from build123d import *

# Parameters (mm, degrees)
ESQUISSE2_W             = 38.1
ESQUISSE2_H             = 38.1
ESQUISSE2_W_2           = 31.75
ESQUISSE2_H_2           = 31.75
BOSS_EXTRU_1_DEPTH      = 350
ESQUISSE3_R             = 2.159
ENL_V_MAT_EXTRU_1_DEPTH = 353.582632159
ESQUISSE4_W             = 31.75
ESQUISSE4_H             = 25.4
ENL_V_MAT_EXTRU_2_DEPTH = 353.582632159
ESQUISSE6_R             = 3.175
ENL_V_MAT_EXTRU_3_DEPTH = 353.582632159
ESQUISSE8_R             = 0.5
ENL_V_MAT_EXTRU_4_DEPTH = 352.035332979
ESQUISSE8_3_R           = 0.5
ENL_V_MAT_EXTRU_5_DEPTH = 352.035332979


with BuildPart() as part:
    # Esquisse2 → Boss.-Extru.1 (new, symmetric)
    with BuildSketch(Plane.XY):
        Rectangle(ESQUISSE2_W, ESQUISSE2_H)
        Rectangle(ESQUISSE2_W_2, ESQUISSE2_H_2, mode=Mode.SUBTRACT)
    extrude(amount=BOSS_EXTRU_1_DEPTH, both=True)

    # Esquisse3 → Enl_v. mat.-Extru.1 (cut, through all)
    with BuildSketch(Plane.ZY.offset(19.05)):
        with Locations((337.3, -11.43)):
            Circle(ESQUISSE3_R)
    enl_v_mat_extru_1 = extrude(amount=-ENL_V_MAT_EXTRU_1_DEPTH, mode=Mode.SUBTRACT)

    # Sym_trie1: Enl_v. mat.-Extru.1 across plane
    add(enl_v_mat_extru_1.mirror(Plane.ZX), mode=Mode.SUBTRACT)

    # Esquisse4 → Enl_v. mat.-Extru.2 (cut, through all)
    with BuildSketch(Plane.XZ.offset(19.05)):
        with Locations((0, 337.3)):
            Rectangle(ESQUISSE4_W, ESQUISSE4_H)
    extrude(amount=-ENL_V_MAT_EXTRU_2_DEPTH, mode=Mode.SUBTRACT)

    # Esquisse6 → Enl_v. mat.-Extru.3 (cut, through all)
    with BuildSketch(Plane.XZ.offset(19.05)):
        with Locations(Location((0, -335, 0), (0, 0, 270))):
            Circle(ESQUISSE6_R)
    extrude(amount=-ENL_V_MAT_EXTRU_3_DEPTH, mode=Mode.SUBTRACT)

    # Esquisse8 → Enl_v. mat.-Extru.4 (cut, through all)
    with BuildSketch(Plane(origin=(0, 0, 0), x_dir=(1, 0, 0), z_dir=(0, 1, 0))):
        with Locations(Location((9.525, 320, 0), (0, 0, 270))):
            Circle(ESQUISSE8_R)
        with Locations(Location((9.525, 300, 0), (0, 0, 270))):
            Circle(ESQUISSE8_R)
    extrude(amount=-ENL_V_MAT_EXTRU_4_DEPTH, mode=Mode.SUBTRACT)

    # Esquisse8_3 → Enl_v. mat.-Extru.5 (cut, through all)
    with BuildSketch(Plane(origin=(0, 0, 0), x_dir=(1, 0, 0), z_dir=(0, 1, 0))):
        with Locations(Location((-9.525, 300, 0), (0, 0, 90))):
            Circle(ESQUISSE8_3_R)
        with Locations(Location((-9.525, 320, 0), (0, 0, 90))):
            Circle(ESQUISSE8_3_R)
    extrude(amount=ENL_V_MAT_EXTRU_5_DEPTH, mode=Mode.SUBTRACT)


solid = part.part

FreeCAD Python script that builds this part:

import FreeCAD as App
import Part
import Sketcher
from FreeCAD import Vector
Q = App.Units.Quantity


def add_polygon(sketch, points):
    """Adds a closed chain of lines whose ends are joined by coincident constraints."""
    first, n = sketch.GeometryCount, len(points)
    for a, b in zip(points, points[1:] + points[:1]):
        sketch.addGeometry(Part.LineSegment(App.Vector(*a, 0), App.Vector(*b, 0)), False)
    for i in range(n):
        sketch.addConstraint(Sketcher.Constraint("Coincident", first + i, 2, first + (i + 1) % n, 1))

doc = App.newDocument("Part")
body = doc.addObject("PartDesign::Body", "Body")

# Sketch on XY plane
sketch1 = doc.addObject("Sketcher::SketchObject", "Sketch")
body.addObject(sketch1)
sketch1.AttachmentSupport = (doc.XY_Plane, [""])
sketch1.MapMode = "FlatFace"
add_polygon(sketch1, [(-19, 19), (-19, -19), (19, -19), (19, 19)])  # lines 0-3
add_polygon(sketch1, [(16, -16), (-16, -16), (-16, 16), (16, 16)])  # lines 4-7
sketch1.addConstraint(Sketcher.Constraint("Vertical", 0))
sketch1.addConstraint(Sketcher.Constraint("Horizontal", 1))
sketch1.addConstraint(Sketcher.Constraint("Vertical", 2))
sketch1.addConstraint(Sketcher.Constraint("Horizontal", 3))
sketch1.addConstraint(Sketcher.Constraint("Horizontal", 4))
sketch1.addConstraint(Sketcher.Constraint("Vertical", 5))
sketch1.addConstraint(Sketcher.Constraint("Horizontal", 6))
sketch1.addConstraint(Sketcher.Constraint("Vertical", 7))
sketch1.addConstraint(Sketcher.Constraint("Symmetric", 0, 2, 2, 2, -1, 1))
sketch1.addConstraint(Sketcher.Constraint("Symmetric", 4, 2, 6, 2, -1, 1))
sketch1.addConstraint(Sketcher.Constraint("Equal", 3, 0))
sketch1.addConstraint(Sketcher.Constraint("Equal", 6, 5))
sketch1.addConstraint(Sketcher.Constraint("DistanceX", 1, 1, 1, 2, Q("1.5 in")))
sketch1.addConstraint(Sketcher.Constraint("DistanceX", 4, 2, 4, 1, Q("1.25 in")))
pad1 = doc.addObject("PartDesign::Pad", "Pad")
body.addObject(pad1)
pad1.Profile = sketch1
pad1.Length = 700
pad1.Midplane = True

# Sketch on YZ plane
sketch2 = doc.addObject("Sketcher::SketchObject", "Sketch001")
body.addObject(sketch2)
sketch2.AttachmentSupport = (doc.YZ_Plane, [""])
sketch2.MapMode = "FlatFace"
sketch2.AttachmentOffset = App.Placement(Vector(0, 0, -0.75 * 25.4), App.Rotation())
sketch2.addGeometry(Part.Circle(Vector(-11.4, 337.3, 0), Vector(0, 0, 1), 2.2), False)
sketch2.addConstraint(Sketcher.Constraint("Diameter", 0, Q("0.17 in")))
sketch2.addConstraint(Sketcher.Constraint("DistanceX", 0, 3, -1, 1, Q("0.45 in")))
sketch2.addConstraint(Sketcher.Constraint("DistanceY", -1, 1, 0, 3, Q("337.3 mm")))
pocket1 = doc.addObject("PartDesign::Pocket", "Pocket")
body.addObject(pocket1)
pocket1.Profile = sketch2
pocket1.Type = "ThroughAll"
pocket1.Reversed = True
doc.recompute()

mirrored = doc.addObject("PartDesign::Mirrored", "Mirrored")
body.addObject(mirrored)
mirrored.Originals = [pocket1]
mirrored.MirrorPlane = (doc.XZ_Plane, [""])
body.Tip = mirrored

# Sketch on XZ plane
sketch3 = doc.addObject("Sketcher::SketchObject", "Sketch002")
body.addObject(sketch3)
sketch3.AttachmentSupport = (doc.XZ_Plane, [""])
sketch3.MapMode = "FlatFace"
sketch3.AttachmentOffset = App.Placement(Vector(0, 0, 0.75 * 25.4), App.Rotation())
add_polygon(sketch3, [(-16, 350), (-16, 325), (16, 325), (16, 350)])  # lines 0-3
sketch3.addConstraint(Sketcher.Constraint("Vertical", 0))
sketch3.addConstraint(Sketcher.Constraint("Horizontal", 1))
sketch3.addConstraint(Sketcher.Constraint("Vertical", 2))
sketch3.addConstraint(Sketcher.Constraint("Horizontal", 3))
sketch3.addConstraint(Sketcher.Constraint("DistanceY", 0, 2, 0, 1, Q("1 in")))
sketch3.addConstraint(Sketcher.Constraint("DistanceX", 1, 1, 1, 2, Q("1.25 in")))
sketch3.addConstraint(Sketcher.Constraint("DistanceX", 0, 2, -1, 1, Q("0.625 in")))
sketch3.addConstraint(Sketcher.Constraint("DistanceY", -1, 1, 0, 2, Q("324.6 mm")))
pocket2 = doc.addObject("PartDesign::Pocket", "Pocket001")
body.addObject(pocket2)
pocket2.Profile = sketch3
pocket2.Type = "ThroughAll"

# Sketch on XZ plane
sketch4 = doc.addObject("Sketcher::SketchObject", "Sketch003")
body.addObject(sketch4)
sketch4.AttachmentSupport = (doc.XZ_Plane, [""])
sketch4.MapMode = "FlatFace"
sketch4.AttachmentOffset = App.Placement(Vector(0, 0, 0.75 * 25.4), App.Rotation())
sketch4.addGeometry(Part.Circle(Vector(0, -335, 0), Vector(0, 0, 1), 3.2), False)
sketch4.addConstraint(Sketcher.Constraint("PointOnObject", 0, 3, -2))
sketch4.addConstraint(Sketcher.Constraint("Diameter", 0, Q("0.25 in")))
sketch4.addConstraint(Sketcher.Constraint("DistanceY", 0, 3, -1, 1, Q("335 mm")))
pocket3 = doc.addObject("PartDesign::Pocket", "Pocket002")
body.addObject(pocket3)
pocket3.Profile = sketch4
pocket3.Type = "ThroughAll"

# Sketch on XZ plane
sketch5 = doc.addObject("Sketcher::SketchObject", "Sketch004")
body.addObject(sketch5)
sketch5.AttachmentSupport = (doc.XZ_Plane, [""])
sketch5.MapMode = "FlatFace"
sketch5.addGeometry(Part.Circle(Vector(9.5, -320, 0), Vector(0, 0, 1), 0.5), False)
sketch5.addGeometry(Part.Circle(Vector(9.5, -300, 0), Vector(0, 0, 1), 0.5), False)
sketch5.addConstraint(Sketcher.Constraint("Equal", 0, 1))
sketch5.addConstraint(Sketcher.Constraint("Vertical", 0, 3, 1, 3))
sketch5.addConstraint(Sketcher.Constraint("Diameter", 0, Q("1 mm")))
sketch5.addConstraint(Sketcher.Constraint("DistanceX", -1, 1, 0, 3, Q("0.375 in")))
sketch5.addConstraint(Sketcher.Constraint("DistanceY", 0, 3, -1, 1, Q("320 mm")))
sketch5.addConstraint(Sketcher.Constraint("DistanceY", 1, 3, -1, 1, Q("300 mm")))
pocket4 = doc.addObject("PartDesign::Pocket", "Pocket003")
body.addObject(pocket4)
pocket4.Profile = sketch5
pocket4.Type = "ThroughAll"
pocket4.Reversed = True

# Sketch on XZ plane
sketch6 = doc.addObject("Sketcher::SketchObject", "Sketch005")
body.addObject(sketch6)
sketch6.AttachmentSupport = (doc.XZ_Plane, [""])
sketch6.MapMode = "FlatFace"
sketch6.addGeometry(Part.Circle(Vector(-9.5, -300, 0), Vector(0, 0, 1), 0.5), False)
sketch6.addGeometry(Part.Circle(Vector(-9.5, -320, 0), Vector(0, 0, 1), 0.5), False)
sketch6.addConstraint(Sketcher.Constraint("Equal", 0, 1))
sketch6.addConstraint(Sketcher.Constraint("Vertical", 0, 3, 1, 3))
sketch6.addConstraint(Sketcher.Constraint("Diameter", 0, Q("1 mm")))
sketch6.addConstraint(Sketcher.Constraint("DistanceX", 0, 3, -1, 1, Q("0.375 in")))
sketch6.addConstraint(Sketcher.Constraint("DistanceY", 0, 3, -1, 1, Q("300 mm")))
sketch6.addConstraint(Sketcher.Constraint("DistanceY", 1, 3, -1, 1, Q("320 mm")))
pocket5 = doc.addObject("PartDesign::Pocket", "Pocket004")
body.addObject(pocket5)
pocket5.Profile = sketch6
pocket5.Type = "ThroughAll"

doc.recompute()
